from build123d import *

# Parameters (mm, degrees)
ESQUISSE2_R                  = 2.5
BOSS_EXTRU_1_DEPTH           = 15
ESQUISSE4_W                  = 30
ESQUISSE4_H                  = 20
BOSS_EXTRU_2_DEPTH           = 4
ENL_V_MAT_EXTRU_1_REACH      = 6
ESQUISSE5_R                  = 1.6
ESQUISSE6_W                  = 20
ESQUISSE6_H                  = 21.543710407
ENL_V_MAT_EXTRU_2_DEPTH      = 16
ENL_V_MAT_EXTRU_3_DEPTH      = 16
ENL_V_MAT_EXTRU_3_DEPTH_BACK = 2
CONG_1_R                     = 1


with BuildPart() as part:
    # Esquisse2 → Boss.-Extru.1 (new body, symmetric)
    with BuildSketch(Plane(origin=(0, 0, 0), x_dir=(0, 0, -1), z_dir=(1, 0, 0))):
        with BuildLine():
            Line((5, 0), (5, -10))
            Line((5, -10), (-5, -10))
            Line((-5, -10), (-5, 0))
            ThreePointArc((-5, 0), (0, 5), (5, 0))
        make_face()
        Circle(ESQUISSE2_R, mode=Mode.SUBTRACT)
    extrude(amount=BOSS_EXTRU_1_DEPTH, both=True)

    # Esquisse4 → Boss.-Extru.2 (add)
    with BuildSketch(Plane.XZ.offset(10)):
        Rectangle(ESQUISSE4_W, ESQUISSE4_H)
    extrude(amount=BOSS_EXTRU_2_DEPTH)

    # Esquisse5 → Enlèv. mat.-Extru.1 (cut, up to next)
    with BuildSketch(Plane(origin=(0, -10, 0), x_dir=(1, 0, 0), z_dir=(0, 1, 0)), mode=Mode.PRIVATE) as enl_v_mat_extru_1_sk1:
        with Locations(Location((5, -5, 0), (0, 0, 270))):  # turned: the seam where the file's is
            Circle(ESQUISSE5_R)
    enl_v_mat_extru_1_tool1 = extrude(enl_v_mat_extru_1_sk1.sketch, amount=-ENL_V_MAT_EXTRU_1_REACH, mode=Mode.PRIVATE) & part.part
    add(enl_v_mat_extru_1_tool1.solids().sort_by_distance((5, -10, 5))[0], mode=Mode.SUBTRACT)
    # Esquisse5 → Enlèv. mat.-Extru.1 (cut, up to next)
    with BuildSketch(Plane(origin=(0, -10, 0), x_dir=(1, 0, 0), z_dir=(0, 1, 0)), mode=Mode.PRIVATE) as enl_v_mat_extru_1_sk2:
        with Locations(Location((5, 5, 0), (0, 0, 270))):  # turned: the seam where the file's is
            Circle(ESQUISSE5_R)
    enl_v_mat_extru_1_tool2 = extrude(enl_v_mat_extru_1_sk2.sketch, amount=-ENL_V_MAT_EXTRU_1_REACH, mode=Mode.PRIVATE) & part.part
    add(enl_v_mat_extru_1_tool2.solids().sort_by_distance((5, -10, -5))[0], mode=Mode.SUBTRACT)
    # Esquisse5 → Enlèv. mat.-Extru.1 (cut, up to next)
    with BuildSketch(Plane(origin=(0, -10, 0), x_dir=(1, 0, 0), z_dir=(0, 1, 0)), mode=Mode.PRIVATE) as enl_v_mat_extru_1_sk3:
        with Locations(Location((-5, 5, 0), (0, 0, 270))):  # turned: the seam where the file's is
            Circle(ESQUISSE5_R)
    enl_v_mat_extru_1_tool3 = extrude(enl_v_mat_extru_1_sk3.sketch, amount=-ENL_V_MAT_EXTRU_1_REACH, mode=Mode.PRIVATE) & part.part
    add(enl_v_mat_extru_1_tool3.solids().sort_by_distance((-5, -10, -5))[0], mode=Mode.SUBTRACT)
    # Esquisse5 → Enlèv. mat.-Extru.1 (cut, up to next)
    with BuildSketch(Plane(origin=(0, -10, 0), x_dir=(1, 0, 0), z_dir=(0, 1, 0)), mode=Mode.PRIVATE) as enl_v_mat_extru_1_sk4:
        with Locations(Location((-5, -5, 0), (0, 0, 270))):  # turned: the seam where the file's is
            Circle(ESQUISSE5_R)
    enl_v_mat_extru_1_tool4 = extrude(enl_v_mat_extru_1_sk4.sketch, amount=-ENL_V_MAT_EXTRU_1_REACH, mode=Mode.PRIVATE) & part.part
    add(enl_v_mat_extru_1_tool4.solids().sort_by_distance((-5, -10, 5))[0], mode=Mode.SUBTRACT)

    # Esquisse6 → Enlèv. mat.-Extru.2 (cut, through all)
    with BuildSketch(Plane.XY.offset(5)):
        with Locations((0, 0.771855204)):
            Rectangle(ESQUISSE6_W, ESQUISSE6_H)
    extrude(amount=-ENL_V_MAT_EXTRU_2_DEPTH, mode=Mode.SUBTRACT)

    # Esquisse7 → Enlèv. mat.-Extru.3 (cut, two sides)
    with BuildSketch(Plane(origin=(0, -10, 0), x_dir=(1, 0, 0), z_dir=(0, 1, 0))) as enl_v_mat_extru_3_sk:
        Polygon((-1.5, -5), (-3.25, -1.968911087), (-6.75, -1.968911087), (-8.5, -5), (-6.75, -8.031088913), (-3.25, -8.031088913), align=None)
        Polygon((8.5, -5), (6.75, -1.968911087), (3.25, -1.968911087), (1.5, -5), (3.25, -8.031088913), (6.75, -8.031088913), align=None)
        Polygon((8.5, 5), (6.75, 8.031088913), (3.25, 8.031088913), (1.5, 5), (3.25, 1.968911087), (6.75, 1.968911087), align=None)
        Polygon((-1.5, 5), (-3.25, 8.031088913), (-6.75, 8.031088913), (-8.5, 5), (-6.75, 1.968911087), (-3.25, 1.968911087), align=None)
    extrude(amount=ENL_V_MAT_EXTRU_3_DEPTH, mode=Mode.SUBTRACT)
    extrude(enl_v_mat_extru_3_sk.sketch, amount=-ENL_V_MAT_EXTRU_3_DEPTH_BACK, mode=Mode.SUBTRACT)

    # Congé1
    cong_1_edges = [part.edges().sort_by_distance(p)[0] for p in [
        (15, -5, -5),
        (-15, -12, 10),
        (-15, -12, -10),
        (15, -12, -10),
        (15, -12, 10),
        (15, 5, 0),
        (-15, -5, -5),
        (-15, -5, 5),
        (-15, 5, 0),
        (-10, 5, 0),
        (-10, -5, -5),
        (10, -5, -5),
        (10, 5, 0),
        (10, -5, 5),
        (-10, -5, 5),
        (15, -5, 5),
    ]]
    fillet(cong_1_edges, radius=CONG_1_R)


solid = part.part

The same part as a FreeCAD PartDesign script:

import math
import FreeCAD as App
import Part
import Sketcher
Q = App.Units.Quantity


def edges_at(feature, points):
    """Names of the edges that pass closest to the given points."""
    edges = feature.Shape.Edges
    near = lambda p: min(range(len(edges)), key=lambda i: edges[i].distToShape(Part.Vertex(*p))[0])
    return sorted({f"Edge{near(p) + 1}" for p in points})

doc = App.newDocument("Part")
body = doc.addObject("PartDesign::Body", "Body")

# Sketch on YZ plane
sketch1 = doc.addObject("Sketcher::SketchObject", "Sketch")
body.addObject(sketch1)
sketch1.AttachmentSupport = (doc.YZ_Plane, [""])
sketch1.MapMode = "FlatFace"
sketch1.addGeometry([
    Part.LineSegment(App.Vector(-10, -5, 0), App.Vector(0, -5, 0)),  # 0
    Part.ArcOfCircle(Part.Circle(App.Vector(0, 0, 0), App.Vector(0, 0, 1), 5), math.radians(-90), math.radians(90)),  # 1
    Part.LineSegment(App.Vector(0, 5, 0), App.Vector(-10, 5, 0)),  # 2
    Part.LineSegment(App.Vector(-10, 5, 0), App.Vector(-10, -5, 0)),  # 3
    Part.Circle(App.Vector(0, 0, 0), App.Vector(0, 0, 1), 2.5),  # 4
], False)
sketch1.addConstraint([
    Sketcher.Constraint("Tangent", 0, 2, 1, 1),
    Sketcher.Constraint("Tangent", 1, 2, 2, 1),
    Sketcher.Constraint("Coincident", 2, 2, 3, 1),
    Sketcher.Constraint("Coincident", 3, 2, 0, 1),
    Sketcher.Constraint("Horizontal", 0),
    Sketcher.Constraint("Horizontal", 2),
    Sketcher.Constraint("Vertical", 3),
    Sketcher.Constraint("Coincident", 1, 3, -1, 1),
    Sketcher.Constraint("Coincident", 4, 3, -1, 1),
    Sketcher.Constraint("Equal", 2, 3),
    Sketcher.Constraint("Diameter", 4, 5.0),
    Sketcher.Constraint("Radius", 1, 5.0),
])
pad1 = doc.addObject("PartDesign::Pad", "Pad")
body.addObject(pad1)
pad1.Profile = sketch1
pad1.Length = 30
pad1.Midplane = True

# Sketch on XZ plane
sketch2 = doc.addObject("Sketcher::SketchObject", "Sketch001")
body.addObject(sketch2)
sketch2.AttachmentSupport = (doc.XZ_Plane, [""])
sketch2.MapMode = "FlatFace"
sketch2.AttachmentOffset = App.Placement(App.Vector(0, 0, 10), App.Rotation())
sketch2.addGeometry([
    Part.LineSegment(App.Vector(-15, 10, 0), App.Vector(-15, -10, 0)),
    Part.LineSegment(App.Vector(-15, -10, 0), App.Vector(15, -10, 0)),
    Part.LineSegment(App.Vector(15, -10, 0), App.Vector(15, 10, 0)),
    Part.LineSegment(App.Vector(15, 10, 0), App.Vector(-15, 10, 0)),
], False)
sketch2.addConstraint([
    Sketcher.Constraint("Coincident", 0, 2, 1, 1),
    Sketcher.Constraint("Coincident", 1, 2, 2, 1),
    Sketcher.Constraint("Coincident", 2, 2, 3, 1),
    Sketcher.Constraint("Coincident", 3, 2, 0, 1),
    Sketcher.Constraint("Vertical", 0),
    Sketcher.Constraint("Horizontal", 1),
    Sketcher.Constraint("Vertical", 2),
    Sketcher.Constraint("Horizontal", 3),
    Sketcher.Constraint("Symmetric", 0, 2, 2, 2, -1, 1),
    Sketcher.Constraint("DistanceX", 1, 1, 1, 2, 30.0),
    Sketcher.Constraint("DistanceY", 0, 2, 0, 1, 20.0),
])
pad2 = doc.addObject("PartDesign::Pad", "Pad001")
body.addObject(pad2)
pad2.Profile = sketch2
pad2.Length = 4

# Sketch on XZ plane
sketch3 = doc.addObject("Sketcher::SketchObject", "Sketch002")
body.addObject(sketch3)
sketch3.AttachmentSupport = (doc.XZ_Plane, [""])
sketch3.MapMode = "FlatFace"
sketch3.AttachmentOffset = App.Placement(App.Vector(0, 0, 10), App.Rotation())
sketch3.addGeometry(Part.Circle(App.Vector(5, 5, 0), App.Vector(0, 0, 1), 1.6), False)
sketch3.addConstraint([
    Sketcher.Constraint("Diameter", 0, 3.2),
    Sketcher.Constraint("DistanceX", -1, 1, 0, 3, 5.0),
    Sketcher.Constraint("DistanceY", -1, 1, 0, 3, 5.0),
])
pocket1 = doc.addObject("PartDesign::Pocket", "Pocket")
body.addObject(pocket1)
pocket1.Profile = sketch3
pocket1.Type = "UpToFirst"
pocket1.Reversed = True

# Sketch on XZ plane
sketch4 = doc.addObject("Sketcher::SketchObject", "Sketch003")
body.addObject(sketch4)
sketch4.AttachmentSupport = (doc.XZ_Plane, [""])
sketch4.MapMode = "FlatFace"
sketch4.AttachmentOffset = App.Placement(App.Vector(0, 0, 10), App.Rotation())
sketch4.addGeometry(Part.Circle(App.Vector(5, -5, 0), App.Vector(0, 0, 1), 1.6), False)
sketch4.addConstraint([
    Sketcher.Constraint("Diameter", 0, 3.2),
    Sketcher.Constraint("DistanceX", -1, 1, 0, 3, 5.0),
    Sketcher.Constraint("DistanceY", 0, 3, -1, 1, 5.0),
])
pocket2 = doc.addObject("PartDesign::Pocket", "Pocket001")
body.addObject(pocket2)
pocket2.Profile = sketch4
pocket2.Type = "UpToFirst"
pocket2.Reversed = True

# Sketch on XZ plane
sketch5 = doc.addObject("Sketcher::SketchObject", "Sketch004")
body.addObject(sketch5)
sketch5.AttachmentSupport = (doc.XZ_Plane, [""])
sketch5.MapMode = "FlatFace"
sketch5.AttachmentOffset = App.Placement(App.Vector(0, 0, 10), App.Rotation())
sketch5.addGeometry(Part.Circle(App.Vector(-5, -5, 0), App.Vector(0, 0, 1), 1.6), False)
sketch5.addConstraint([
    Sketcher.Constraint("Diameter", 0, 3.2),
    Sketcher.Constraint("DistanceX", 0, 3, -1, 1, 5.0),
    Sketcher.Constraint("DistanceY", 0, 3, -1, 1, 5.0),
])
pocket3 = doc.addObject("PartDesign::Pocket", "Pocket002")
body.addObject(pocket3)
pocket3.Profile = sketch5
pocket3.Type = "UpToFirst"
pocket3.Reversed = True

# Sketch on XZ plane
sketch6 = doc.addObject("Sketcher::SketchObject", "Sketch005")
body.addObject(sketch6)
sketch6.AttachmentSupport = (doc.XZ_Plane, [""])
sketch6.MapMode = "FlatFace"
sketch6.AttachmentOffset = App.Placement(App.Vector(0, 0, 10), App.Rotation())
sketch6.addGeometry(Part.Circle(App.Vector(-5, 5, 0), App.Vector(0, 0, 1), 1.6), False)
sketch6.addConstraint([
    Sketcher.Constraint("Diameter", 0, 3.2),
    Sketcher.Constraint("DistanceX", 0, 3, -1, 1, 5.0),
    Sketcher.Constraint("DistanceY", -1, 1, 0, 3, 5.0),
])
pocket4 = doc.addObject("PartDesign::Pocket", "Pocket003")
body.addObject(pocket4)
pocket4.Profile = sketch6
pocket4.Type = "UpToFirst"
pocket4.Reversed = True

# Sketch on XY plane
sketch7 = doc.addObject("Sketcher::SketchObject", "Sketch006")
body.addObject(sketch7)
sketch7.AttachmentSupport = (doc.XY_Plane, [""])
sketch7.MapMode = "FlatFace"
sketch7.AttachmentOffset = App.Placement(App.Vector(0, 0, 5), App.Rotation())
sketch7.addGeometry([
    Part.LineSegment(App.Vector(-10, 11.54371, 0), App.Vector(-10, -10, 0)),
    Part.LineSegment(App.Vector(-10, -10, 0), App.Vector(10, -10, 0)),
    Part.LineSegment(App.Vector(10, -10, 0), App.Vector(10, 11.54371, 0)),
    Part.LineSegment(App.Vector(10, 11.54371, 0), App.Vector(-10, 11.54371, 0)),
], False)
sketch7.addConstraint([
    Sketcher.Constraint("Coincident", 0, 2, 1, 1),
    Sketcher.Constraint("Coincident", 1, 2, 2, 1),
    Sketcher.Constraint("Coincident", 2, 2, 3, 1),
    Sketcher.Constraint("Coincident", 3, 2, 0, 1),
    Sketcher.Constraint("Vertical", 0),
    Sketcher.Constraint("Horizontal", 1),
    Sketcher.Constraint("Vertical", 2),
    Sketcher.Constraint("Horizontal", 3),
    Sketcher.Constraint("DistanceX", 1, 1, 1, 2, 20.0),
    Sketcher.Constraint("DistanceX", 0, 2, -1, 1, 10.0),
    Sketcher.Constraint("DistanceY", 0, 2, -1, 1, 10.0),
    Sketcher.Constraint("DistanceY", 0, 2, 0, 1, 21.54371),
])
pocket5 = doc.addObject("PartDesign::Pocket", "Pocket004")
body.addObject(pocket5)
pocket5.Profile = sketch7
pocket5.Type = "ThroughAll"

# Sketch on XZ plane
sketch8 = doc.addObject("Sketcher::SketchObject", "Sketch007")
body.addObject(sketch8)
sketch8.AttachmentSupport = (doc.XZ_Plane, [""])
sketch8.MapMode = "FlatFace"
sketch8.AttachmentOffset = App.Placement(App.Vector(0, 0, 10), App.Rotation())
sketch8.addGeometry([
    Part.LineSegment(App.Vector(-1.5, 5, 0), App.Vector(-3.25, 1.968911, 0)),  # 0
    Part.LineSegment(App.Vector(-3.25, 1.968911, 0), App.Vector(-6.75, 1.968911, 0)),  # 1
    Part.LineSegment(App.Vector(-6.75, 1.968911, 0), App.Vector(-8.5, 5, 0)),  # 2
    Part.LineSegment(App.Vector(-8.5, 5, 0), App.Vector(-6.75, 8.031089, 0)),  # 3
    Part.LineSegment(App.Vector(-6.75, 8.031089, 0), App.Vector(-3.25, 8.031089, 0)),  # 4
    Part.LineSegment(App.Vector(-3.25, 8.031089, 0), App.Vector(-1.5, 5, 0)),  # 5
    Part.LineSegment(App.Vector(8.5, 5, 0), App.Vector(6.75, 1.968911, 0)),  # 6
    Part.LineSegment(App.Vector(6.75, 1.968911, 0), App.Vector(3.25, 1.968911, 0)),  # 7
    Part.LineSegment(App.Vector(3.25, 1.968911, 0), App.Vector(1.5, 5, 0)),  # 8
    Part.LineSegment(App.Vector(1.5, 5, 0), App.Vector(3.25, 8.031089, 0)),  # 9
    Part.LineSegment(App.Vector(3.25, 8.031089, 0), App.Vector(6.75, 8.031089, 0)),  # 10
    Part.LineSegment(App.Vector(6.75, 8.031089, 0), App.Vector(8.5, 5, 0)),  # 11
    Part.LineSegment(App.Vector(8.5, -5, 0), App.Vector(6.75, -8.031089, 0)),  # 12
    Part.LineSegment(App.Vector(6.75, -8.031089, 0), App.Vector(3.25, -8.031089, 0)),  # 13
    Part.LineSegment(App.Vector(3.25, -8.031089, 0), App.Vector(1.5, -5, 0)),  # 14
    Part.LineSegment(App.Vector(1.5, -5, 0), App.Vector(3.25, -1.968911, 0)),  # 15
    Part.LineSegment(App.Vector(3.25, -1.968911, 0), App.Vector(6.75, -1.968911, 0)),  # 16
    Part.LineSegment(App.Vector(6.75, -1.968911, 0), App.Vector(8.5, -5, 0)),  # 17
    Part.LineSegment(App.Vector(-1.5, -5, 0), App.Vector(-3.25, -8.031089, 0)),  # 18
    Part.LineSegment(App.Vector(-3.25, -8.031089, 0), App.Vector(-6.75, -8.031089, 0)),  # 19
    Part.LineSegment(App.Vector(-6.75, -8.031089, 0), App.Vector(-8.5, -5, 0)),  # 20
    Part.LineSegment(App.Vector(-8.5, -5, 0), App.Vector(-6.75, -1.968911, 0)),  # 21
    Part.LineSegment(App.Vector(-6.75, -1.968911, 0), App.Vector(-3.25, -1.968911, 0)),  # 22
    Part.LineSegment(App.Vector(-3.25, -1.968911, 0), App.Vector(-1.5, -5, 0)),  # 23
], False)
sketch8.addConstraint([
    Sketcher.Constraint("Coincident", 0, 2, 1, 1),
    Sketcher.Constraint("Coincident", 1, 2, 2, 1),
    Sketcher.Constraint("Coincident", 2, 2, 3, 1),
    Sketcher.Constraint("Coincident", 3, 2, 4, 1),
    Sketcher.Constraint("Coincident", 4, 2, 5, 1),
    Sketcher.Constraint("Coincident", 5, 2, 0, 1),
    Sketcher.Constraint("Coincident", 6, 2, 7, 1),
    Sketcher.Constraint("Coincident", 7, 2, 8, 1),
    Sketcher.Constraint("Coincident", 8, 2, 9, 1),
    Sketcher.Constraint("Coincident", 9, 2, 10, 1),
    Sketcher.Constraint("Coincident", 10, 2, 11, 1),
    Sketcher.Constraint("Coincident", 11, 2, 6, 1),
    Sketcher.Constraint("Coincident", 12, 2, 13, 1),
    Sketcher.Constraint("Coincident", 13, 2, 14, 1),
    Sketcher.Constraint("Coincident", 14, 2, 15, 1),
    Sketcher.Constraint("Coincident", 15, 2, 16, 1),
    Sketcher.Constraint("Coincident", 16, 2, 17, 1),
    Sketcher.Constraint("Coincident", 17, 2, 12, 1),
    Sketcher.Constraint("Coincident", 18, 2, 19, 1),
    Sketcher.Constraint("Coincident", 19, 2, 20, 1),
    Sketcher.Constraint("Coincident", 20, 2, 21, 1),
    Sketcher.Constraint("Coincident", 21, 2, 22, 1),
    Sketcher.Constraint("Coincident", 22, 2, 23, 1),
    Sketcher.Constraint("Coincident", 23, 2, 18, 1),
    Sketcher.Constraint("Horizontal", 1),
    Sketcher.Constraint("Horizontal", 4),
    Sketcher.Constraint("Horizontal", 7),
    Sketcher.Constraint("Horizontal", 10),
    Sketcher.Constraint("Horizontal", 13),
    Sketcher.Constraint("Horizontal", 16),
    Sketcher.Constraint("Horizontal", 19),
    Sketcher.Constraint("Horizontal", 22),
    Sketcher.Constraint("Symmetric", 3, 2, 12, 2, -1, 1),
    Sketcher.Constraint("Symmetric", 5, 2, 14, 2, -1, 1),
    Sketcher.Constraint("Symmetric", 0, 2, 15, 2, -1, 1),
    Sketcher.Constraint("Symmetric", 2, 2, 17, 2, -1, 1),
    Sketcher.Constraint("Symmetric", 9, 2, 18, 2, -1, 1),
    Sketcher.Constraint("Symmetric", 11, 2, 20, 2, -1, 1),
    Sketcher.Constraint("Symmetric", 6, 2, 21, 2, -1, 1),
    Sketcher.Constraint("Symmetric", 8, 2, 23, 2, -1, 1),
    Sketcher.Constraint("Symmetric", 1, 2, 6, 2, -2),
    Sketcher.Constraint("Symmetric", 5, 2, 8, 2, -2),
    Sketcher.Constraint("Symmetric", 4, 2, 9, 2, -2),
    Sketcher.Constraint("Symmetric", 2, 2, 11, 2, -2),
    Sketcher.Constraint("Parallel", 0, 3),
    Sketcher.Constraint("Parallel", 2, 5),
    Sketcher.Constraint("Parallel", 3, 6),
    Sketcher.Constraint("Parallel", 5, 8),
    Sketcher.Constraint("Parallel", 8, 11),
    Sketcher.Constraint("Parallel", 11, 14),
    Sketcher.Constraint("Parallel", 14, 17),
    Sketcher.Constraint("Parallel", 17, 20),
    Sketcher.Constraint("Parallel", 20, 23),
    Sketcher.Constraint("Horizontal", 2, 2, 5, 2),
    Sketcher.Constraint("Vertical", 1, 2, 3, 2),
    Sketcher.Constraint("Angle", 0, Q("-120 deg")),
    Sketcher.Constraint("DistanceX", 1, 2, 1, 1, 3.5),
    Sketcher.Constraint("DistanceY", -1, 1, 2, 2, 5.0),
    Sketcher.Constraint("DistanceX", 2, 2, 5, 2, 7.0),
    Sketcher.Constraint("DistanceX", 0, 2, 6, 2, 10.0),
])
pocket6 = doc.addObject("PartDesign::Pocket", "Pocket005")
body.addObject(pocket6)
pocket6.Profile = sketch8
pocket6.Type = "TwoLengths"
pocket6.Length = 16
pocket6.Length2 = 2
doc.recompute()

fillet = doc.addObject("PartDesign::Fillet", "Fillet")
body.addObject(fillet)
fillet.Base = (pocket6, edges_at(pocket6, [
    (15, -5, -5),
    (-15, -12, 10),
    (-15, -12, -10),
    (15, -12, -10),
    (15, -12, 10),
    (15, 5, 0),
    (-15, -5, -5),
    (-15, -5, 5),
    (-15, 5, 0),
    (-10, 5, 0),
    (-10, -5, -5),
    (10, -5, -5),
    (10, 5, 0),
    (10, -5, 5),
    (-10, -5, 5),
    (15, -5, 5),
]))
fillet.Radius = 1

doc.recompute()
